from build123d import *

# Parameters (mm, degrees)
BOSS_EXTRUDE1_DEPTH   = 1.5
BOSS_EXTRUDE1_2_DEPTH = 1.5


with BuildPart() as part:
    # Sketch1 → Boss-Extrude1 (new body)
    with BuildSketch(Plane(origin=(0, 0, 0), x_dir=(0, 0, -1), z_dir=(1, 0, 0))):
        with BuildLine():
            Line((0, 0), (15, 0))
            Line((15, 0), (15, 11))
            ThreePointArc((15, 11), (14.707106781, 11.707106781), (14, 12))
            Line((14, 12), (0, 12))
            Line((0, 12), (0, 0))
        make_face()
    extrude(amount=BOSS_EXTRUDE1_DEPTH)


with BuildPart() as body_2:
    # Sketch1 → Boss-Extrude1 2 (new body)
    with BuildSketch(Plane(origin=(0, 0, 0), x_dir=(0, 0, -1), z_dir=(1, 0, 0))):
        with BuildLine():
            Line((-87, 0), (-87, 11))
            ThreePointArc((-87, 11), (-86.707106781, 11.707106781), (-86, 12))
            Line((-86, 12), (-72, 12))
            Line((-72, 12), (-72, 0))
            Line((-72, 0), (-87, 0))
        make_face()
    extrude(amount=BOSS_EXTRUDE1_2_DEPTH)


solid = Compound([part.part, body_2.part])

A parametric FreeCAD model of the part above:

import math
import FreeCAD as App
import Part
import Sketcher
Q = App.Units.Quantity

doc = App.newDocument("Part")
body = doc.addObject("PartDesign::Body", "Body")

# Sketch on YZ plane
sketch1 = body.newObject("Sketcher::SketchObject", "Sketch")
sketch1.AttachmentSupport = (doc.getObject("YZ_Plane"), [""])
sketch1.MapMode = "FlatFace"
sketch1.addGeometry(Part.LineSegment(App.Vector(0, 0, 0), App.Vector(0, -15, 0)), False)
sketch1.addGeometry(Part.LineSegment(App.Vector(0, -15, 0), App.Vector(11, -15, 0)), False)
sketch1.addGeometry(Part.ArcOfCircle(Part.Circle(App.Vector(11, -14, 0), App.Vector(0, 0, 1), 1), math.radians(-90), math.radians(0)), False)
sketch1.addGeometry(Part.LineSegment(App.Vector(12, -14, 0), App.Vector(12, 0, 0)), False)
sketch1.addGeometry(Part.LineSegment(App.Vector(12, 0, 0), App.Vector(0, 0, 0)), False)
sketch1.addConstraint(Sketcher.Constraint("Coincident", 0, 2, 1, 1))
sketch1.addConstraint(Sketcher.Constraint("Tangent", 1, 2, 2, 1))
sketch1.addConstraint(Sketcher.Constraint("Tangent", 2, 2, 3, 1))
sketch1.addConstraint(Sketcher.Constraint("Coincident", 3, 2, 4, 1))
sketch1.addConstraint(Sketcher.Constraint("Coincident", 4, 2, 0, 1))
sketch1.addConstraint(Sketcher.Constraint("Vertical", 0))
sketch1.addConstraint(Sketcher.Constraint("Horizontal", 1))
sketch1.addConstraint(Sketcher.Constraint("Vertical", 3))
sketch1.addConstraint(Sketcher.Constraint("Horizontal", 4))
sketch1.addConstraint(Sketcher.Constraint("Coincident", 4, 2, -1, 1))
sketch1.addConstraint(Sketcher.Constraint("Radius", 2, Q("1 mm")))
sketch1.addConstraint(Sketcher.Constraint("DistanceX", 1, 1, 1, 2, Q("11 mm")))
sketch1.addConstraint(Sketcher.Constraint("DistanceY", 0, 2, 0, 1, Q("15 mm")))
pad1 = body.newObject("PartDesign::Pad", "Pad")
pad1.Profile = sketch1
pad1.Length = 1.5
body2 = doc.addObject("PartDesign::Body", "Body001")

# Sketch on YZ plane
sketch2 = body2.newObject("Sketcher::SketchObject", "Sketch001")
sketch2.AttachmentSupport = (doc.getObject("YZ_Plane001"), [""])
sketch2.MapMode = "FlatFace"
sketch2.addGeometry(Part.LineSegment(App.Vector(11, 87, 0), App.Vector(0, 87, 0)), False)
sketch2.addGeometry(Part.LineSegment(App.Vector(0, 87, 0), App.Vector(0, 72, 0)), False)
sketch2.addGeometry(Part.LineSegment(App.Vector(0, 72, 0), App.Vector(12, 72, 0)), False)
sketch2.addGeometry(Part.LineSegment(App.Vector(12, 72, 0), App.Vector(12, 86, 0)), False)
sketch2.addGeometry(Part.ArcOfCircle(Part.Circle(App.Vector(11, 86, 0), App.Vector(0, 0, 1), 1), math.radians(0), math.radians(90)), False)
sketch2.addConstraint(Sketcher.Constraint("Coincident", 0, 2, 1, 1))
sketch2.addConstraint(Sketcher.Constraint("Coincident", 1, 2, 2, 1))
sketch2.addConstraint(Sketcher.Constraint("Coincident", 2, 2, 3, 1))
sketch2.addConstraint(Sketcher.Constraint("Tangent", 3, 2, 4, 1))
sketch2.addConstraint(Sketcher.Constraint("Tangent", 4, 2, 0, 1))
sketch2.addConstraint(Sketcher.Constraint("Horizontal", 0))
sketch2.addConstraint(Sketcher.Constraint("Vertical", 1))
sketch2.addConstraint(Sketcher.Constraint("Horizontal", 2))
sketch2.addConstraint(Sketcher.Constraint("Vertical", 3))
sketch2.addConstraint(Sketcher.Constraint("PointOnObject", 0, 2, -2))
sketch2.addConstraint(Sketcher.Constraint("Radius", 4, Q("1 mm")))
sketch2.addConstraint(Sketcher.Constraint("DistanceX", 0, 2, 0, 1, Q("11 mm")))
sketch2.addConstraint(Sketcher.Constraint("DistanceY", 1, 2, 1, 1, Q("15 mm")))
sketch2.addConstraint(Sketcher.Constraint("DistanceY", -1, 1, 4, 3, Q("86 mm")))
pad2 = body2.newObject("PartDesign::Pad", "Pad001")
pad2.Profile = sketch2
pad2.Length = 1.5

doc.recompute()
